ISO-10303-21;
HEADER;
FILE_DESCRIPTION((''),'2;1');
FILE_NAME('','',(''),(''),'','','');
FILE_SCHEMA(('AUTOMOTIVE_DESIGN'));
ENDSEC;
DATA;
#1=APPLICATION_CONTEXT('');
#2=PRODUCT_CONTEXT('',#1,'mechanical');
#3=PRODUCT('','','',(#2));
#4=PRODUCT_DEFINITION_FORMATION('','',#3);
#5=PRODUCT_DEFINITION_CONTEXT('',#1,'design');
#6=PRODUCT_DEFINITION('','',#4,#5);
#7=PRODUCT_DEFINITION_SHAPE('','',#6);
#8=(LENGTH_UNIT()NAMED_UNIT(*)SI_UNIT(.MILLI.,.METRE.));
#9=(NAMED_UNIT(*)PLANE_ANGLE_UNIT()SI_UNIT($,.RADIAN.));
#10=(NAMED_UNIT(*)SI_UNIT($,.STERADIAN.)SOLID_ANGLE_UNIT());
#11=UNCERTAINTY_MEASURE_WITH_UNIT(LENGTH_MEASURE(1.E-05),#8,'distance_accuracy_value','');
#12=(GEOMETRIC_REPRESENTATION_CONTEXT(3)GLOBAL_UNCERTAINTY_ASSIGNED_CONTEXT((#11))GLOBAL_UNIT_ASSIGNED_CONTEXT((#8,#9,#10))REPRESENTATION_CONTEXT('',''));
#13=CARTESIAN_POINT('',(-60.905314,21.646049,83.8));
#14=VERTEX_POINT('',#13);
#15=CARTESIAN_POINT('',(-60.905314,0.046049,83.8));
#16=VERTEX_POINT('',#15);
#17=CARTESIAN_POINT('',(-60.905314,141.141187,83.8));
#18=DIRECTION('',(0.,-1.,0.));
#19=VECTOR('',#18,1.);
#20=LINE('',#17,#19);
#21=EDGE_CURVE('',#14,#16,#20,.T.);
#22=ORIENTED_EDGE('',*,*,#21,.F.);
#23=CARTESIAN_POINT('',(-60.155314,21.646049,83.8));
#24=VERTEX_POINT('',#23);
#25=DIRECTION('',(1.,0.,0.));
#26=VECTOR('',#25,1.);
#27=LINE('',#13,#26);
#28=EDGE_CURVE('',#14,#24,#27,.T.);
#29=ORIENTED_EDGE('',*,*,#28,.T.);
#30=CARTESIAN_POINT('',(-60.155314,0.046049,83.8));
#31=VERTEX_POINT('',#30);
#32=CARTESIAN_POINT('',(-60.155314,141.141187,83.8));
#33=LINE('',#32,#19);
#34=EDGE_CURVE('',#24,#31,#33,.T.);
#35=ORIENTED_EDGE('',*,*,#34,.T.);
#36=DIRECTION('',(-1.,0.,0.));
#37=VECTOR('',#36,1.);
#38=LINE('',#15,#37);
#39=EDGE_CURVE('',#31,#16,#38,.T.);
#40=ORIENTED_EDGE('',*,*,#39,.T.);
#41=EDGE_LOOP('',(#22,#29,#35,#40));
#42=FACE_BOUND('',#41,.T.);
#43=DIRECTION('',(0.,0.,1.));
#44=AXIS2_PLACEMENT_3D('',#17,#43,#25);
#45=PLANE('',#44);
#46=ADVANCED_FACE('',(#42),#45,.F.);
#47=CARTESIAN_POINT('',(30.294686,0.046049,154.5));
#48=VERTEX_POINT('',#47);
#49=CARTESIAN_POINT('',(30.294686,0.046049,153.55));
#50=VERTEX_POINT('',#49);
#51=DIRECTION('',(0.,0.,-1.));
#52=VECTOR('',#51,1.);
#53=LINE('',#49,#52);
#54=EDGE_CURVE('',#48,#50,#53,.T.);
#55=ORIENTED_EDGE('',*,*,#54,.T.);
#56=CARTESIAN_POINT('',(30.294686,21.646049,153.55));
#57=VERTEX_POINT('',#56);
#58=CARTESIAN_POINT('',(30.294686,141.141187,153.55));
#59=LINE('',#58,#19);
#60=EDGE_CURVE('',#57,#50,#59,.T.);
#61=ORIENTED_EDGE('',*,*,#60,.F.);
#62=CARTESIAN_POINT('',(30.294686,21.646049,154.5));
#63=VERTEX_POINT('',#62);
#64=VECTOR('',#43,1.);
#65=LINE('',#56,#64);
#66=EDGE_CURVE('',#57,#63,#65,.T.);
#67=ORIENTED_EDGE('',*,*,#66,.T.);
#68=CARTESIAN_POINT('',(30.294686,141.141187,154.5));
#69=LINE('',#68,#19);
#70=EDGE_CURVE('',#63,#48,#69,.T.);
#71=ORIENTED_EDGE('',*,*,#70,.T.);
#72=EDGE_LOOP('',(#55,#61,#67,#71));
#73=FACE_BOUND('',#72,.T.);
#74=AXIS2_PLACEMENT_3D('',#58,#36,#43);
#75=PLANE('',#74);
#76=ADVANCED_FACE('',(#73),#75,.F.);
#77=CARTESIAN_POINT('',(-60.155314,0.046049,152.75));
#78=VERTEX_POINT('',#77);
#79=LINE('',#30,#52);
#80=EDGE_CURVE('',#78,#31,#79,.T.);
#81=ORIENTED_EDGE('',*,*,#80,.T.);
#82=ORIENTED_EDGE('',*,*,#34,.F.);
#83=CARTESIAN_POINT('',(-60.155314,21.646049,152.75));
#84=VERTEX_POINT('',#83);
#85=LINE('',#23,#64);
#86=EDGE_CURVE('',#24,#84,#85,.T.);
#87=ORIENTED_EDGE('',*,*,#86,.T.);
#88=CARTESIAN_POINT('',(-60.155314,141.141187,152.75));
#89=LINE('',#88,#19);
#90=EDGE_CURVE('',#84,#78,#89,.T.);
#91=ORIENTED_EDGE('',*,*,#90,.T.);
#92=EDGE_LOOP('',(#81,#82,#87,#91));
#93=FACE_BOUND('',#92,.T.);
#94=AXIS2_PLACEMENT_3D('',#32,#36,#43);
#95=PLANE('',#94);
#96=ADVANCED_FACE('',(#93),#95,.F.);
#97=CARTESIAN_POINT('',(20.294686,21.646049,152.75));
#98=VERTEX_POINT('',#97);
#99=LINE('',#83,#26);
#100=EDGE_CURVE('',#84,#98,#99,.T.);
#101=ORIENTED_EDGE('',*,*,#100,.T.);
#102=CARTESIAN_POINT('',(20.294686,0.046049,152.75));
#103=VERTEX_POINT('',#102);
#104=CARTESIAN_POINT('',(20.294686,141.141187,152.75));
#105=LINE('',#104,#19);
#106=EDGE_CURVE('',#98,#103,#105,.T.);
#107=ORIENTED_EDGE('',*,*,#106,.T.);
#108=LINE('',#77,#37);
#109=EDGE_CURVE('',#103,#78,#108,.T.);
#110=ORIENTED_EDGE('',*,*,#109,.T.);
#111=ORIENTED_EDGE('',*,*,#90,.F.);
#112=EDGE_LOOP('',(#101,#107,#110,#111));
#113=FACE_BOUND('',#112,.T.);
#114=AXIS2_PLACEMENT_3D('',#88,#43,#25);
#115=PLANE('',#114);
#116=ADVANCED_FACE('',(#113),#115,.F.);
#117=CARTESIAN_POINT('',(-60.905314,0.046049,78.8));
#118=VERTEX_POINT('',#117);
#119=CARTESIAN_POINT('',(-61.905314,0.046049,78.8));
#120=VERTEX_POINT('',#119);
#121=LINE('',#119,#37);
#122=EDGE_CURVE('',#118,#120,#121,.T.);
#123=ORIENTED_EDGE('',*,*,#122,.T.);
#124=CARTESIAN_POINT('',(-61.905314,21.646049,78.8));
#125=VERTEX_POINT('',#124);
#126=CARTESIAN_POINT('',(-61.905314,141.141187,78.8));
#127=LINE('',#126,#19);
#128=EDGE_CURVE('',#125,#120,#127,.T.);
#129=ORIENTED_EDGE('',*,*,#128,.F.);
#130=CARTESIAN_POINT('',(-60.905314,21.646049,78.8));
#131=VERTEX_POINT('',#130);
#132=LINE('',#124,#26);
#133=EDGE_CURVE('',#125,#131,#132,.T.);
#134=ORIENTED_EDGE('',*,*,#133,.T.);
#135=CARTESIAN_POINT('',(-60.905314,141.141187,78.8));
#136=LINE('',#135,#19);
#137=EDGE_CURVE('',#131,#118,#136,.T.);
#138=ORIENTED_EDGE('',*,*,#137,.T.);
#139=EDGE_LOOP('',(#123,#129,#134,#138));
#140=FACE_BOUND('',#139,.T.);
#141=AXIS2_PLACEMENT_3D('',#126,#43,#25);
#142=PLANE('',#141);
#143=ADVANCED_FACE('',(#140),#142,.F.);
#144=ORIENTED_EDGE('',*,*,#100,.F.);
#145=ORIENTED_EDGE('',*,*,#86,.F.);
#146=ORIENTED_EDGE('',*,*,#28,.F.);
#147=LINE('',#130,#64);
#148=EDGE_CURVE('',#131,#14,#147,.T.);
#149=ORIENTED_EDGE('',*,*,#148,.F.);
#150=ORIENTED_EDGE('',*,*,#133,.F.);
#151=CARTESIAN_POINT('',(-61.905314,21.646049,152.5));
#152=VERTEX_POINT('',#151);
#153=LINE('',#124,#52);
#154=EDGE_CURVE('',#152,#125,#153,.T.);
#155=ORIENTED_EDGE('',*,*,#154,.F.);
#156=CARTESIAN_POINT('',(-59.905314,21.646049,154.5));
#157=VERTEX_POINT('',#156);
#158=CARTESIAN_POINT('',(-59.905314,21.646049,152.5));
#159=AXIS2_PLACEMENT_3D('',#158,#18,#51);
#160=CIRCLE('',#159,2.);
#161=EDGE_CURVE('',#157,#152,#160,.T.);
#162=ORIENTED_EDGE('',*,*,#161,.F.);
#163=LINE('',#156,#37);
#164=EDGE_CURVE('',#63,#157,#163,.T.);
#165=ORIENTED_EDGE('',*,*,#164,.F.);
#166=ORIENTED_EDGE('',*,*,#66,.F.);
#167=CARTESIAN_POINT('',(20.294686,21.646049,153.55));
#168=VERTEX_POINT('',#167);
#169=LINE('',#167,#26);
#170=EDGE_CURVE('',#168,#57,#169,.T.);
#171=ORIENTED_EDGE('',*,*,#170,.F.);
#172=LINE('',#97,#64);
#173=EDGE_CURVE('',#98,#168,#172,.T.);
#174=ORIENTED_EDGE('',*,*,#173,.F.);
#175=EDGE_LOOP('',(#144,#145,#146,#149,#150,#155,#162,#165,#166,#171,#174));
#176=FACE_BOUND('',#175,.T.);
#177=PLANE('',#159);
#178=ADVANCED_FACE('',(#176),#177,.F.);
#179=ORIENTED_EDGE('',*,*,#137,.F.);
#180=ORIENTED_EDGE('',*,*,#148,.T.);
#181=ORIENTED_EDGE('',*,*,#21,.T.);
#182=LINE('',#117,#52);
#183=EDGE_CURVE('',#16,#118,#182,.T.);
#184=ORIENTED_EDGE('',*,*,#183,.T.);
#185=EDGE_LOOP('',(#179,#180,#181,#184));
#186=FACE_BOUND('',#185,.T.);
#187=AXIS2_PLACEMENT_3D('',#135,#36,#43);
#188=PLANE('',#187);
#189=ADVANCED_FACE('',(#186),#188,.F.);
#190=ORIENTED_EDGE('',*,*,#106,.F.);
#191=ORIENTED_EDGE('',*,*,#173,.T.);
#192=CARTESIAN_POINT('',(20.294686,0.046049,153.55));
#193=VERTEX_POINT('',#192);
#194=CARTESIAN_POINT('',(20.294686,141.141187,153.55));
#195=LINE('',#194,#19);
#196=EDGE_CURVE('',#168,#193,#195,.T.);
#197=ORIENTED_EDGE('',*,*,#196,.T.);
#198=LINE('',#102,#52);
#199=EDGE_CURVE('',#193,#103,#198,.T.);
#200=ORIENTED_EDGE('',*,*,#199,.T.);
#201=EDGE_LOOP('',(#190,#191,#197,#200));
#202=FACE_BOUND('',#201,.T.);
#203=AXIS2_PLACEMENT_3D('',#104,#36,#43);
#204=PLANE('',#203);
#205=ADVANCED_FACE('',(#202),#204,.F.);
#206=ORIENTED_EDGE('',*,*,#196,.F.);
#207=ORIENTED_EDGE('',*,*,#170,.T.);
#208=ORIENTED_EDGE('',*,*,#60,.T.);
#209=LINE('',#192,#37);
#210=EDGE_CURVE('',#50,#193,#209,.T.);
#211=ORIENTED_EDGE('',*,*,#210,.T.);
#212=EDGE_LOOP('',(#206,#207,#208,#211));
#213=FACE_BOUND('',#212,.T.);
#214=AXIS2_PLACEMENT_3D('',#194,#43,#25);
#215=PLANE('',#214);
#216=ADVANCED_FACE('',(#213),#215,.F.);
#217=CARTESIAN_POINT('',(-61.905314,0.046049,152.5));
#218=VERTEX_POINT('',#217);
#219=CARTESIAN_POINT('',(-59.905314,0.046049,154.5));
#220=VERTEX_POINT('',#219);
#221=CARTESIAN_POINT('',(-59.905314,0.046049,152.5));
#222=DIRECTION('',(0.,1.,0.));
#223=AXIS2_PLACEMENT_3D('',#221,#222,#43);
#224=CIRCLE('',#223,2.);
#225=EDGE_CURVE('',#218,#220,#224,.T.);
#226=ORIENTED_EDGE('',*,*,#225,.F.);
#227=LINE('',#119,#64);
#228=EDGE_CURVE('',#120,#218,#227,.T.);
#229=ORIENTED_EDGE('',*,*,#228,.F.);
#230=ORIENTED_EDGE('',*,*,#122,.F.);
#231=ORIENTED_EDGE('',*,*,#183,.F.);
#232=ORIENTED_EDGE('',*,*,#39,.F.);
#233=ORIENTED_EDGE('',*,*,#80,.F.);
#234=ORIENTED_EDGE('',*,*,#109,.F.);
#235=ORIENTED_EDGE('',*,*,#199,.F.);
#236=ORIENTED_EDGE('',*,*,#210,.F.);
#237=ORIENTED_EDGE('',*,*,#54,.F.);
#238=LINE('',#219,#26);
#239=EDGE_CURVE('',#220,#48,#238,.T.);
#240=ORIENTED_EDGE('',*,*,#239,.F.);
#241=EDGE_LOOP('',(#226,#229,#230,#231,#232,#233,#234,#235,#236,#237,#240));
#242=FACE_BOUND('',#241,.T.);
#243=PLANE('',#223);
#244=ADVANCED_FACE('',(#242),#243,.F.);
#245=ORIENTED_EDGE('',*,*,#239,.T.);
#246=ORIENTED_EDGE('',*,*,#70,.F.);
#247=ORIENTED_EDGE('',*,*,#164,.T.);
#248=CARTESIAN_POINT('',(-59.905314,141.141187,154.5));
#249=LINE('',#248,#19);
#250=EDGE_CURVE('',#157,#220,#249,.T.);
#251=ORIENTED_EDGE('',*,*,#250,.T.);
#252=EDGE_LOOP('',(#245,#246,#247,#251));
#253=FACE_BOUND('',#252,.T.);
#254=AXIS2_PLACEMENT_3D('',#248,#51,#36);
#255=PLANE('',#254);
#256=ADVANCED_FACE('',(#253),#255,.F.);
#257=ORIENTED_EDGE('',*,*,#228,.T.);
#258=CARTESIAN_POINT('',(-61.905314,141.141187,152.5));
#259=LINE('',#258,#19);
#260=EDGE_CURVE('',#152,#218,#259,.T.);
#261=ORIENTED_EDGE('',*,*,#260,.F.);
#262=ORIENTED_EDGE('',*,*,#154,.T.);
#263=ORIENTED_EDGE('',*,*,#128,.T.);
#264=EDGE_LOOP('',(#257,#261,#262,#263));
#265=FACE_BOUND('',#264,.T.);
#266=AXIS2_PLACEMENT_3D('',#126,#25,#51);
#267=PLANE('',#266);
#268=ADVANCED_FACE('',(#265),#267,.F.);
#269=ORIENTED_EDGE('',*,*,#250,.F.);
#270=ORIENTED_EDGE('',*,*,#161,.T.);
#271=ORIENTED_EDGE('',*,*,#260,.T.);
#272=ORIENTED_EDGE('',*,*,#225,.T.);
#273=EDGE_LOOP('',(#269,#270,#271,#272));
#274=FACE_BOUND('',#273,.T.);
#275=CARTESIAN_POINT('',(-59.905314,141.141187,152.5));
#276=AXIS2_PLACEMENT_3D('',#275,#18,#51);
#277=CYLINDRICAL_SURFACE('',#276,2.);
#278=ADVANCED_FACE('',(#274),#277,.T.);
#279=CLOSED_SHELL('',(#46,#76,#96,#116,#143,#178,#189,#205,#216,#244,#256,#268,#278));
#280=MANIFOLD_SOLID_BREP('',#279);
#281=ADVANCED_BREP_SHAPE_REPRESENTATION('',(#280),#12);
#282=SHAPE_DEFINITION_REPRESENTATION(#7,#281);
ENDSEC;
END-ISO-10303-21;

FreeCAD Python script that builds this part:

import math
import FreeCAD as App
import Part
import Sketcher
from FreeCAD import Vector
Q = App.Units.Quantity

doc = App.newDocument("Part")
body = doc.addObject("PartDesign::Body", "Body")

# Sketch on XZ plane
sketch1 = body.newObject("Sketcher::SketchObject", "Sketch")
sketch1.AttachmentSupport = (doc.getObject("XZ_Plane"), [""])
sketch1.MapMode = "FlatFace"
sketch1.AttachmentOffset = App.Placement(Vector(0, 0, -0.046049), App.Rotation())
sketch1.addGeometry([
    Part.LineSegment(Vector(-59.9, 154.5, 0), Vector(30.3, 154.5, 0)),  # 0
    Part.LineSegment(Vector(30.3, 154.5, 0), Vector(30.3, 153.6, 0)),  # 1
    Part.LineSegment(Vector(30.3, 153.6, 0), Vector(20.3, 153.6, 0)),  # 2
    Part.LineSegment(Vector(20.3, 153.6, 0), Vector(20.3, 152.8, 0)),  # 3
    Part.LineSegment(Vector(20.3, 152.8, 0), Vector(-60.2, 152.8, 0)),  # 4
    Part.LineSegment(Vector(-60.2, 152.8, 0), Vector(-60.2, 83.8, 0)),  # 5
    Part.LineSegment(Vector(-60.2, 83.8, 0), Vector(-60.9, 83.8, 0)),  # 6
    Part.LineSegment(Vector(-60.9, 83.8, 0), Vector(-60.9, 78.8, 0)),  # 7
    Part.LineSegment(Vector(-60.9, 78.8, 0), Vector(-61.9, 78.8, 0)),  # 8
    Part.LineSegment(Vector(-61.9, 78.8, 0), Vector(-61.9, 152.5, 0)),  # 9
    Part.ArcOfCircle(Part.Circle(Vector(-59.9, 152.5, 0), Vector(0, 0, 1), 2), math.radians(90), math.radians(180)),  # 10
], False)
sketch1.addConstraint([
    Sketcher.Constraint("Coincident", 0, 2, 1, 1),
    Sketcher.Constraint("Coincident", 1, 2, 2, 1),
    Sketcher.Constraint("Coincident", 2, 2, 3, 1),
    Sketcher.Constraint("Coincident", 3, 2, 4, 1),
    Sketcher.Constraint("Coincident", 4, 2, 5, 1),
    Sketcher.Constraint("Coincident", 5, 2, 6, 1),
    Sketcher.Constraint("Coincident", 6, 2, 7, 1),
    Sketcher.Constraint("Coincident", 7, 2, 8, 1),
    Sketcher.Constraint("Coincident", 8, 2, 9, 1),
    Sketcher.Constraint("Tangent", 9, 2, 10, 2),
    Sketcher.Constraint("Tangent", 10, 1, 0, 1),
    Sketcher.Constraint("Horizontal", 0),
    Sketcher.Constraint("Vertical", 1),
    Sketcher.Constraint("Horizontal", 2),
    Sketcher.Constraint("Vertical", 3),
    Sketcher.Constraint("Horizontal", 4),
    Sketcher.Constraint("Vertical", 5),
    Sketcher.Constraint("Horizontal", 6),
    Sketcher.Constraint("Vertical", 7),
    Sketcher.Constraint("Horizontal", 8),
    Sketcher.Constraint("Vertical", 9),
    Sketcher.Constraint("Radius", 10, Q("2 mm")),
    Sketcher.Constraint("DistanceX", 2, 2, 2, 1, Q("10 mm")),
    Sketcher.Constraint("DistanceX", 8, 2, 8, 1, Q("1 mm")),
    Sketcher.Constraint("DistanceY", 7, 2, 7, 1, Q("5 mm")),
    Sketcher.Constraint("DistanceX", 0, 1, 0, 2, Q("90.2 mm")),
    Sketcher.Constraint("DistanceY", 3, 2, 3, 1, Q("0.8 mm")),
    Sketcher.Constraint("DistanceY", 9, 1, 9, 2, Q("73.7 mm")),
    Sketcher.Constraint("DistanceX", 4, 2, 4, 1, Q("80.45 mm")),
    Sketcher.Constraint("DistanceY", 1, 2, 1, 1, Q("0.95 mm")),
    Sketcher.Constraint("DistanceY", -1, 1, 10, 3, Q("152.5 mm")),
    Sketcher.Constraint("DistanceX", 10, 3, -1, 1, Q("59.905314 mm")),
])
pad1 = body.newObject("PartDesign::Pad", "Pad")
pad1.Profile = sketch1
pad1.Length = 21.6
pad1.Reversed = True

doc.recompute()
